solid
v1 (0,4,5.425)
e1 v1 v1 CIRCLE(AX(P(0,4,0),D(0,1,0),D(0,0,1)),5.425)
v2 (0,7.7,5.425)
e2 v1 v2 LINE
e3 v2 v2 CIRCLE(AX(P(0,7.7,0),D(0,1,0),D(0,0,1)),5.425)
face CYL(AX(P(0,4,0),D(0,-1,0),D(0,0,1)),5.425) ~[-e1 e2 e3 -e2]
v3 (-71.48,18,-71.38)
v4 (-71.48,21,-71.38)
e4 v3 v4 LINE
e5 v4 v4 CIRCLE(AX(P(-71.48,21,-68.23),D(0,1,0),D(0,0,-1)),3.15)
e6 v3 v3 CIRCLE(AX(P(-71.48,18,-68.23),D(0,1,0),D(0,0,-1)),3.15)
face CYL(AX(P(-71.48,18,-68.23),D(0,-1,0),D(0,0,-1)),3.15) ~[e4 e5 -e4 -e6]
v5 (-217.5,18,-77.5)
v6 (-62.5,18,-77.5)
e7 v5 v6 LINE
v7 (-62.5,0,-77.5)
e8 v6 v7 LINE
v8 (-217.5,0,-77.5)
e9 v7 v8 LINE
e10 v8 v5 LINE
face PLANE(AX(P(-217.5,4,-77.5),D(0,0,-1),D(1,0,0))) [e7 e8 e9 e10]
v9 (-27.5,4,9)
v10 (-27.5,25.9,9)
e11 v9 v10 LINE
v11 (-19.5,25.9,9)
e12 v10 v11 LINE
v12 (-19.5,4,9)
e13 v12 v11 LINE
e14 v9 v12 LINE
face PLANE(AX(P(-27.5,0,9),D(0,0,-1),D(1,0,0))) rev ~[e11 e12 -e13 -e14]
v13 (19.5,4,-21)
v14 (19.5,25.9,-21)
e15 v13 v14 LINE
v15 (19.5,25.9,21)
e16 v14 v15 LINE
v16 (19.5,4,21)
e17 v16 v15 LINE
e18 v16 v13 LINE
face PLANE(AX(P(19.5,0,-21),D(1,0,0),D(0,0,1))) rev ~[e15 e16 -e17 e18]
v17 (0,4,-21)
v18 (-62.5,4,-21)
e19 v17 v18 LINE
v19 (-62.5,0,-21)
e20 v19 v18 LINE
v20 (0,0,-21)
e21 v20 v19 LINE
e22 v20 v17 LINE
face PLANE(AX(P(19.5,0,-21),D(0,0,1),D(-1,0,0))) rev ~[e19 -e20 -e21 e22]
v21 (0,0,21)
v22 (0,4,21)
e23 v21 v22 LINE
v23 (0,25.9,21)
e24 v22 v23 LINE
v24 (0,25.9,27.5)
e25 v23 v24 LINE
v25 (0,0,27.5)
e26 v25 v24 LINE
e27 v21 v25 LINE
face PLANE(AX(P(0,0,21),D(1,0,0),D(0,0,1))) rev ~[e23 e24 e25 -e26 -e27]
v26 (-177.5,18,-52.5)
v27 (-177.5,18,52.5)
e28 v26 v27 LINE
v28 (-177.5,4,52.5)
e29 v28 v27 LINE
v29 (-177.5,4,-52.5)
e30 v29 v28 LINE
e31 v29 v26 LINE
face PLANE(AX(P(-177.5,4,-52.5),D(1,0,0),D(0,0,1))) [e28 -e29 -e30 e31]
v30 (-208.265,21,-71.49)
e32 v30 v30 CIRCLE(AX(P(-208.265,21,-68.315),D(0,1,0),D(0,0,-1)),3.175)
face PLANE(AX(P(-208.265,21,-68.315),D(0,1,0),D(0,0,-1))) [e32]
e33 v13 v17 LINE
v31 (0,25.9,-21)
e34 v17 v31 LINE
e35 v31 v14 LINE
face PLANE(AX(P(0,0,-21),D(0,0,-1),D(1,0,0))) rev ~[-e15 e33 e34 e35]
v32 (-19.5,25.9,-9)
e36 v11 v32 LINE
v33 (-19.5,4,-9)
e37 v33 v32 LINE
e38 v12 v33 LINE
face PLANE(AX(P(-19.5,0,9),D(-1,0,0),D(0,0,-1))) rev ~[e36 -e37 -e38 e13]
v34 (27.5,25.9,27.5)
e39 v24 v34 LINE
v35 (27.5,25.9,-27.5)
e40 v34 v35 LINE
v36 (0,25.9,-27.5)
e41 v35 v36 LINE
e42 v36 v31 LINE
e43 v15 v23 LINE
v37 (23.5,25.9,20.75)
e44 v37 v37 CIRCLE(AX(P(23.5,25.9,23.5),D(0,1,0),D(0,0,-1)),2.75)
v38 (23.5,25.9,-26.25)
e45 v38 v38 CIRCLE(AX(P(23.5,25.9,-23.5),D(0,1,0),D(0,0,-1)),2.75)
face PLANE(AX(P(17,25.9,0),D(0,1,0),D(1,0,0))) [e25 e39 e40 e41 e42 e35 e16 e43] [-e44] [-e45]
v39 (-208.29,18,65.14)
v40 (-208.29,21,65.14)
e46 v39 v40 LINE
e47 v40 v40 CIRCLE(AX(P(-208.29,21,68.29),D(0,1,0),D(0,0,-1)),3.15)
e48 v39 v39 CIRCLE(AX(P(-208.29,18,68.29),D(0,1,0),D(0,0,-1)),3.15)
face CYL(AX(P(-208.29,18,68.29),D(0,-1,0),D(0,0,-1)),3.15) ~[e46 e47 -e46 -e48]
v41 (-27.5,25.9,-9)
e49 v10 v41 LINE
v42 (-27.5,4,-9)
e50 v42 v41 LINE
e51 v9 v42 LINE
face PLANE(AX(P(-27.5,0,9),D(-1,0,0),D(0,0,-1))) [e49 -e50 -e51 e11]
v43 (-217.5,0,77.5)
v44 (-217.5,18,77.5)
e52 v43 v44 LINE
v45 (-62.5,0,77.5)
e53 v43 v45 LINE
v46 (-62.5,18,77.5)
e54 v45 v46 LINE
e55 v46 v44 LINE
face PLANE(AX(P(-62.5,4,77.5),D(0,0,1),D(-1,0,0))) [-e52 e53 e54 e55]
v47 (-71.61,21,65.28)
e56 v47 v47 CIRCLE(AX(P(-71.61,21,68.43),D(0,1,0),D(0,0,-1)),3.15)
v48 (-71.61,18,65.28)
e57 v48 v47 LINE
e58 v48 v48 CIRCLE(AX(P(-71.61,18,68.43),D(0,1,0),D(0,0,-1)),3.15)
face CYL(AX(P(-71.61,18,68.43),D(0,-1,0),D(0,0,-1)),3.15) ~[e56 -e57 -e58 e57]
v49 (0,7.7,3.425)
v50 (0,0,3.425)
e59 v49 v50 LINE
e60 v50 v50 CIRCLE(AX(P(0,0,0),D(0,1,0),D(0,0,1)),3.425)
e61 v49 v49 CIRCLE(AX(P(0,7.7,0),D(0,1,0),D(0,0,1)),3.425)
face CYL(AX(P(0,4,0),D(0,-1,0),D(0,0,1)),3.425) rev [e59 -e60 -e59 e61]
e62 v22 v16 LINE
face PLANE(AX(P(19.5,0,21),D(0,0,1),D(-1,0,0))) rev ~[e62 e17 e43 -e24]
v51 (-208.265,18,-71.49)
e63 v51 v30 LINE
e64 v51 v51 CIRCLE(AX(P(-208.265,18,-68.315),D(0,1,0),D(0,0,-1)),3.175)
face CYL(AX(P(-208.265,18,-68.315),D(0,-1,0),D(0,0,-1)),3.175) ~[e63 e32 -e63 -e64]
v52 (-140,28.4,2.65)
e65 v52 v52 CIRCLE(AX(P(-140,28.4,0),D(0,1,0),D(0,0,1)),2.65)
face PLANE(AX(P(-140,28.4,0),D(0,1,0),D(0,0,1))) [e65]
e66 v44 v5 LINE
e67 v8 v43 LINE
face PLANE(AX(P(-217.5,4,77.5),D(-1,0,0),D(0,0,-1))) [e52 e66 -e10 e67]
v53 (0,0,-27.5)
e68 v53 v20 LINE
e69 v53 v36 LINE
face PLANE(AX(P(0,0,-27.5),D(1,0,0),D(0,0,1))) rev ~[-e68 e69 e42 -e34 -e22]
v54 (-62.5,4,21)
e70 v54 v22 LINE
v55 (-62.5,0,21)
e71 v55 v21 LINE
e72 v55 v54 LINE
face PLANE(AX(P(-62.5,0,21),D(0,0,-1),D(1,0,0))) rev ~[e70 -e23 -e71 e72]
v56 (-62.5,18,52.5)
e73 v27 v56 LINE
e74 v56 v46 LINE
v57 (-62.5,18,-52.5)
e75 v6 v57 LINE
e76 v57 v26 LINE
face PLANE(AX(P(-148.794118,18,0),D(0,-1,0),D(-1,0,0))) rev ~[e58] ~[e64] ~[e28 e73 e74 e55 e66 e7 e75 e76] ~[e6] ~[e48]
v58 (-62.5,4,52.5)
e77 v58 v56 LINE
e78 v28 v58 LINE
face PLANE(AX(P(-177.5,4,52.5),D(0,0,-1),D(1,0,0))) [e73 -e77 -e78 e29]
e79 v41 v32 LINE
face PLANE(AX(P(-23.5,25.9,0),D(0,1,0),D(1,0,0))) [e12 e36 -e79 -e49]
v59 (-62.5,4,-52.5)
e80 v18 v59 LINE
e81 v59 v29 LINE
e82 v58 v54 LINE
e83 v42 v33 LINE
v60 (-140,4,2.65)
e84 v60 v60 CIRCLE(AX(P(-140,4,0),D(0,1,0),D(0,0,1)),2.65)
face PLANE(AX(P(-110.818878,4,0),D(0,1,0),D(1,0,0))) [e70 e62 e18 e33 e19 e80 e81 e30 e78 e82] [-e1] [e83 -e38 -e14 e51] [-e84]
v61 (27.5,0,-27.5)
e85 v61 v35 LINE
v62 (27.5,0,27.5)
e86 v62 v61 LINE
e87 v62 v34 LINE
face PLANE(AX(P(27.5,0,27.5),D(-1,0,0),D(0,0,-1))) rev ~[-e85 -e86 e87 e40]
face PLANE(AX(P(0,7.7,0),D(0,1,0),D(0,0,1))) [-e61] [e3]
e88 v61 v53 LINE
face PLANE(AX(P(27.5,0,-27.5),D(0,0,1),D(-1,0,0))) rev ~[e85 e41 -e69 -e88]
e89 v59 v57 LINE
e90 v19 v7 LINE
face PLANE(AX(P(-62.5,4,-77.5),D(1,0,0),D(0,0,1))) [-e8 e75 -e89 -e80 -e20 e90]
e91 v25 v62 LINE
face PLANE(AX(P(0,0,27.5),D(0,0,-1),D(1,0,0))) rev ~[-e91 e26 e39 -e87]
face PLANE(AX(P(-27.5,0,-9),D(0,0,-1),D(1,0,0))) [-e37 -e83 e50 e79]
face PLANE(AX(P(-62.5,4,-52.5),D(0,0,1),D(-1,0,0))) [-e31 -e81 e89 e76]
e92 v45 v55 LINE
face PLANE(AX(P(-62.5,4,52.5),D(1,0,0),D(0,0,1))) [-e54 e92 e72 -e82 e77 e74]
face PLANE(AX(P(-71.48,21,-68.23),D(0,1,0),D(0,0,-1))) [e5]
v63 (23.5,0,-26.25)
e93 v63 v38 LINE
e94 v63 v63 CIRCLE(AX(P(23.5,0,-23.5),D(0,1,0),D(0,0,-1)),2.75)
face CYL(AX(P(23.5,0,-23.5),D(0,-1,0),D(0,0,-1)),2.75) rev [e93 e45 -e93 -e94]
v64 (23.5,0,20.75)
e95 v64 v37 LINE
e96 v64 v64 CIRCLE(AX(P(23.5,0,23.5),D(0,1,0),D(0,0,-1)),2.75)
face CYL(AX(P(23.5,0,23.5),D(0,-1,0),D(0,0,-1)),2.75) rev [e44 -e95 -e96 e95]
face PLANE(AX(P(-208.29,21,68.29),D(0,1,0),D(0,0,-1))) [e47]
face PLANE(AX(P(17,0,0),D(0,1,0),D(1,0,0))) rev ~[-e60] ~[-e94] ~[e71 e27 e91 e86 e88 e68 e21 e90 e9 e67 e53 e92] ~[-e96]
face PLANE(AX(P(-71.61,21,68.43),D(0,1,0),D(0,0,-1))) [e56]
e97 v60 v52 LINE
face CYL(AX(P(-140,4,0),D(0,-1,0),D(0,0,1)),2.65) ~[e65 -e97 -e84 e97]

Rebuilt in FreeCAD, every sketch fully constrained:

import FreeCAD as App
import Part
import Sketcher

V = App.Vector
Q = App.Units.Quantity


def add_polygon(sketch, points):
    """Adds a closed chain of lines whose ends are joined by coincident constraints."""
    first, n = sketch.GeometryCount, len(points)
    for a, b in zip(points, points[1:] + points[:1]):
        sketch.addGeometry(Part.LineSegment(App.Vector(*a, 0), App.Vector(*b, 0)), False)
    for i in range(n):
        sketch.addConstraint(Sketcher.Constraint("Coincident", first + i, 2, first + (i + 1) % n, 1))

doc = App.newDocument("Part")
body = doc.addObject("PartDesign::Body", "Body")

# Sketch on XZ plane
sketch1 = doc.addObject("Sketcher::SketchObject", "Sketch")
body.addObject(sketch1)
sketch1.AttachmentSupport = (doc.XZ_Plane, [""])
sketch1.MapMode = "FlatFace"
add_polygon(sketch1, [(-62.5, 21), (19.5, 21), (19.5, -21), (-62.5, -21), (-62.5, -77.5), (-217.5, -77.5), (-217.5, 77.5), (-62.5, 77.5)])  # lines 0-7
add_polygon(sketch1, [(-19.5, 9), (-27.5, 9), (-27.5, -9), (-19.5, -9)])  # lines 8-11
sketch1.addGeometry(Part.Circle(V(0, 0, 0), V(0, 0, 1), 3.4), False)  # 12
sketch1.addConstraint([
    Sketcher.Constraint("Horizontal", 0),
    Sketcher.Constraint("Vertical", 1),
    Sketcher.Constraint("Horizontal", 2),
    Sketcher.Constraint("Vertical", 3),
    Sketcher.Constraint("Horizontal", 4),
    Sketcher.Constraint("Vertical", 5),
    Sketcher.Constraint("Horizontal", 6),
    Sketcher.Constraint("Vertical", 7),
    Sketcher.Constraint("Horizontal", 8),
    Sketcher.Constraint("Vertical", 9),
    Sketcher.Constraint("Horizontal", 10),
    Sketcher.Constraint("Vertical", 11),
    Sketcher.Constraint("Coincident", 12, 3, -1, 1),
    Sketcher.Constraint("Symmetric", 3, 2, 6, 2, -1),
    Sketcher.Constraint("Equal", 6, 5),
    Sketcher.Constraint("Equal", 3, 7),
    Sketcher.Constraint("Diameter", 12, Q("6.85 mm")),
    Sketcher.Constraint("DistanceX", 0, 1, 0, 2, Q("82 mm")),
    Sketcher.Constraint("DistanceX", 4, 2, 4, 1, Q("155 mm")),
    Sketcher.Constraint("DistanceX", 8, 2, 8, 1, Q("8 mm")),
    Sketcher.Constraint("DistanceY", 1, 2, 1, 1, Q("42 mm")),
    Sketcher.Constraint("DistanceY", 9, 2, 9, 1, Q("18 mm")),
    Sketcher.Constraint("DistanceY", -1, 1, 8, 2, Q("9 mm")),
    Sketcher.Constraint("DistanceX", 7, 2, 8, 2, Q("35 mm")),
    Sketcher.Constraint("DistanceX", -1, 1, 0, 2, Q("19.5 mm")),
])
pad1 = doc.addObject("PartDesign::Pad", "Pad")
body.addObject(pad1)
pad1.Profile = sketch1
pad1.Length = 4
pad1.Reversed = True

# Sketch on XZ plane
sketch2 = doc.addObject("Sketcher::SketchObject", "Sketch001")
body.addObject(sketch2)
sketch2.AttachmentSupport = (doc.XZ_Plane, [""])
sketch2.MapMode = "FlatFace"
add_polygon(sketch2, [(27.5, 27.5), (27.5, -27.5), (0, -27.5), (0, -21), (19.5, -21), (19.5, 21), (0, 21), (0, 27.5)])  # lines 0-7
sketch2.addGeometry(Part.Circle(V(23.5, 23.5, 0), V(0, 0, 1), 2.8), False)  # 8
sketch2.addGeometry(Part.Circle(V(23.5, -23.5, 0), V(0, 0, 1), 2.8), False)  # 9
add_polygon(sketch2, [(-27.5, -9), (-27.5, 9), (-19.5, 9), (-19.5, -9)])  # lines 10-13
sketch2.addConstraint([
    Sketcher.Constraint("Vertical", 0),
    Sketcher.Constraint("Horizontal", 1),
    Sketcher.Constraint("Vertical", 2),
    Sketcher.Constraint("Horizontal", 3),
    Sketcher.Constraint("Vertical", 4),
    Sketcher.Constraint("Horizontal", 5),
    Sketcher.Constraint("Vertical", 6),
    Sketcher.Constraint("Horizontal", 7),
    Sketcher.Constraint("Vertical", 10),
    Sketcher.Constraint("Horizontal", 11),
    Sketcher.Constraint("Vertical", 12),
    Sketcher.Constraint("Horizontal", 13),
    Sketcher.Constraint("Equal", 8, 9),
    Sketcher.Constraint("Symmetric", 2, 2, 5, 2, -1, 1),
    Sketcher.Constraint("Symmetric", 8, 3, 9, 3, -1),
    Sketcher.Constraint("Symmetric", 1, 2, 6, 2, -1),
    Sketcher.Constraint("Diameter", 8, Q("5.5 mm")),
    Sketcher.Constraint("DistanceX", 11, 1, 11, 2, Q("8 mm")),
    Sketcher.Constraint("DistanceY", 0, 2, 0, 1, Q("55 mm")),
    Sketcher.Constraint("DistanceY", 4, 1, 4, 2, Q("42 mm")),
    Sketcher.Constraint("DistanceY", 10, 1, 10, 2, Q("18 mm")),
    Sketcher.Constraint("DistanceX", 1, 2, 1, 1, Q("27.5 mm")),
    Sketcher.Constraint("DistanceX", 3, 1, 3, 2, Q("19.5 mm")),
    Sketcher.Constraint("DistanceY", -1, 1, 10, 2, Q("9 mm")),
    Sketcher.Constraint("DistanceY", 9, 3, 8, 3, Q("47 mm")),
    Sketcher.Constraint("DistanceX", 9, 3, 0, 2, Q("4 mm")),
    Sketcher.Constraint("DistanceX", 10, 2, 4, 2, Q("47 mm")),
])
pad2 = doc.addObject("PartDesign::Pad", "Pad001")
body.addObject(pad2)
pad2.Profile = sketch2
pad2.Length = 25.9
pad2.Reversed = True

# Sketch on XZ plane
sketch3 = doc.addObject("Sketcher::SketchObject", "Sketch002")
body.addObject(sketch3)
sketch3.AttachmentSupport = (doc.XZ_Plane, [""])
sketch3.MapMode = "FlatFace"
sketch3.AttachmentOffset = App.Placement(V(0, 0, -4), App.Rotation())
sketch3.addGeometry([
    Part.Circle(V(0, 0, 0), V(0, 0, 1), 5.4),
    Part.Circle(V(0, 0, 0), V(0, 0, 1), 3.4),
], False)
sketch3.addConstraint([
    Sketcher.Constraint("Coincident", 0, 3, -1, 1),
    Sketcher.Constraint("Coincident", 1, 3, -1, 1),
    Sketcher.Constraint("Diameter", 0, Q("10.85 mm")),
    Sketcher.Constraint("Diameter", 1, Q("6.85 mm")),
])
pad3 = doc.addObject("PartDesign::Pad", "Pad002")
body.addObject(pad3)
pad3.Profile = sketch3
pad3.Length = 3.7
pad3.Reversed = True

# Sketch on XZ plane
sketch4 = doc.addObject("Sketcher::SketchObject", "Sketch003")
body.addObject(sketch4)
sketch4.AttachmentSupport = (doc.XZ_Plane, [""])
sketch4.MapMode = "FlatFace"
sketch4.AttachmentOffset = App.Placement(V(0, 0, -4), App.Rotation())
add_polygon(sketch4, [(-62, -78), (-218, -78), (-218, 78), (-62, 78), (-62, 52), (-178, 52), (-178, -52), (-62, -52)])  # lines 0-7
sketch4.addConstraint([
    Sketcher.Constraint("Horizontal", 0),
    Sketcher.Constraint("Vertical", 1),
    Sketcher.Constraint("Horizontal", 2),
    Sketcher.Constraint("Vertical", 3),
    Sketcher.Constraint("Horizontal", 4),
    Sketcher.Constraint("Vertical", 5),
    Sketcher.Constraint("Horizontal", 6),
    Sketcher.Constraint("Vertical", 7),
    Sketcher.Constraint("Symmetric", 3, 2, 6, 2, -1),
    Sketcher.Constraint("Equal", 2, 1),
    Sketcher.Constraint("Equal", 3, 7),
    Sketcher.Constraint("DistanceX", 0, 2, 0, 1, Q("155 mm")),
    Sketcher.Constraint("DistanceX", 4, 2, 4, 1, Q("115 mm")),
    Sketcher.Constraint("DistanceY", 3, 2, 3, 1, Q("25 mm")),
    Sketcher.Constraint("DistanceX", 0, 2, -1, 1, Q("217.5 mm")),
])
pad4 = doc.addObject("PartDesign::Pad", "Pad003")
body.addObject(pad4)
pad4.Profile = sketch4
pad4.Length = 14
pad4.Reversed = True

# Sketch on XZ plane
sketch5 = doc.addObject("Sketcher::SketchObject", "Sketch004")
body.addObject(sketch5)
sketch5.AttachmentSupport = (doc.XZ_Plane, [""])
sketch5.MapMode = "FlatFace"
sketch5.AttachmentOffset = App.Placement(V(0, 0, -18), App.Rotation())
sketch5.addGeometry([
    Part.Circle(V(-71.5, -68.2, 0), V(0, 0, 1), 3.1),
    Part.Circle(V(-71.6, 68.4, 0), V(0, 0, 1), 3.1),
    Part.Circle(V(-208.3, 68.3, 0), V(0, 0, 1), 3.1),
    Part.Circle(V(-208.3, -68.3, 0), V(0, 0, 1), 3.2),
], False)
sketch5.addConstraint([
    Sketcher.Constraint("Equal", 0, 1),
    Sketcher.Constraint("Equal", 1, 2),
    Sketcher.Constraint("Diameter", 0, Q("6.3 mm")),
    Sketcher.Constraint("Diameter", 3, Q("6.35 mm")),
    Sketcher.Constraint("DistanceX", 0, 3, -1, 1, Q("71.48 mm")),
    Sketcher.Constraint("DistanceY", 0, 3, -1, 1, Q("68.23 mm")),
    Sketcher.Constraint("DistanceX", 1, 3, -1, 1, Q("71.61 mm")),
    Sketcher.Constraint("DistanceY", -1, 1, 1, 3, Q("68.43 mm")),
    Sketcher.Constraint("DistanceX", 2, 3, -1, 1, Q("208.29 mm")),
    Sketcher.Constraint("DistanceY", -1, 1, 2, 3, Q("68.29 mm")),
    Sketcher.Constraint("DistanceX", 3, 3, -1, 1, Q("208.265 mm")),
    Sketcher.Constraint("DistanceY", 3, 3, -1, 1, Q("68.315 mm")),
])
pad5 = doc.addObject("PartDesign::Pad", "Pad004")
body.addObject(pad5)
pad5.Profile = sketch5
pad5.Length = 3
pad5.Reversed = True

# Sketch on XZ plane
sketch6 = doc.addObject("Sketcher::SketchObject", "Sketch005")
body.addObject(sketch6)
sketch6.AttachmentSupport = (doc.XZ_Plane, [""])
sketch6.MapMode = "FlatFace"
sketch6.AttachmentOffset = App.Placement(V(0, 0, -4), App.Rotation())
sketch6.addGeometry(Part.Circle(V(-140, 0, 0), V(0, 0, 1), 2.6), False)
sketch6.addConstraint([
    Sketcher.Constraint("PointOnObject", 0, 3, -1),
    Sketcher.Constraint("Diameter", 0, Q("5.3 mm")),
    Sketcher.Constraint("DistanceX", 0, 3, -1, 1, Q("140 mm")),
])
pad6 = doc.addObject("PartDesign::Pad", "Pad005")
body.addObject(pad6)
pad6.Profile = sketch6
pad6.Length = 24.4
pad6.Reversed = True

doc.recompute()
